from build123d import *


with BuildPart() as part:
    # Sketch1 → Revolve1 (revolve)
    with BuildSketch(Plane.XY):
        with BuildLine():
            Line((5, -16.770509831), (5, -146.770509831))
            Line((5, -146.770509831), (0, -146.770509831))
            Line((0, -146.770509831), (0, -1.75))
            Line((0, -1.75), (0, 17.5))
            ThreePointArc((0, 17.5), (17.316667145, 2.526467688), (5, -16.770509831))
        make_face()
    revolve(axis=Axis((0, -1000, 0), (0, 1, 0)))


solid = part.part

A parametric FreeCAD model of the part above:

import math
import FreeCAD as App
import Part
import Sketcher
from FreeCAD import Vector
Q = App.Units.Quantity

doc = App.newDocument("Part")
body = doc.addObject("PartDesign::Body", "Body")

# Sketch on XY plane
sketch1 = body.newObject("Sketcher::SketchObject", "Sketch")
sketch1.AttachmentSupport = (doc.getObject("XY_Plane"), [""])
sketch1.MapMode = "FlatFace"
sketch1.addGeometry([
    Part.LineSegment(Vector(5, -147, 0), Vector(5, -17, 0)),
    Part.ArcOfCircle(Part.Circle(Vector(0, 0, 0), Vector(0, 0, 1), 18), math.radians(-73), math.radians(90)),
    Part.LineSegment(Vector(0, 18, 0), Vector(0, -147, 0)),
    Part.LineSegment(Vector(0, -147, 0), Vector(5, -147, 0)),
], False)
sketch1.addConstraint([
    Sketcher.Constraint("Coincident", 0, 2, 1, 1),
    Sketcher.Constraint("Coincident", 1, 2, 2, 1),
    Sketcher.Constraint("Coincident", 2, 2, 3, 1),
    Sketcher.Constraint("Coincident", 3, 2, 0, 1),
    Sketcher.Constraint("Vertical", 0),
    Sketcher.Constraint("Vertical", 2),
    Sketcher.Constraint("Horizontal", 3),
    Sketcher.Constraint("Coincident", 1, 3, -1, 1),
    Sketcher.Constraint("PointOnObject", 1, 2, -2),
    Sketcher.Constraint("Radius", 1, Q("17.5 mm")),
    Sketcher.Constraint("DistanceX", 3, 1, 3, 2, Q("5 mm")),
    Sketcher.Constraint("DistanceY", 0, 1, 0, 2, Q("130 mm")),
])
revolution = body.newObject("PartDesign::Revolution", "Revolution")
revolution.Profile = sketch1
revolution.ReferenceAxis = (sketch1, ["V_Axis"])
revolution.Angle = 360

doc.recompute()
